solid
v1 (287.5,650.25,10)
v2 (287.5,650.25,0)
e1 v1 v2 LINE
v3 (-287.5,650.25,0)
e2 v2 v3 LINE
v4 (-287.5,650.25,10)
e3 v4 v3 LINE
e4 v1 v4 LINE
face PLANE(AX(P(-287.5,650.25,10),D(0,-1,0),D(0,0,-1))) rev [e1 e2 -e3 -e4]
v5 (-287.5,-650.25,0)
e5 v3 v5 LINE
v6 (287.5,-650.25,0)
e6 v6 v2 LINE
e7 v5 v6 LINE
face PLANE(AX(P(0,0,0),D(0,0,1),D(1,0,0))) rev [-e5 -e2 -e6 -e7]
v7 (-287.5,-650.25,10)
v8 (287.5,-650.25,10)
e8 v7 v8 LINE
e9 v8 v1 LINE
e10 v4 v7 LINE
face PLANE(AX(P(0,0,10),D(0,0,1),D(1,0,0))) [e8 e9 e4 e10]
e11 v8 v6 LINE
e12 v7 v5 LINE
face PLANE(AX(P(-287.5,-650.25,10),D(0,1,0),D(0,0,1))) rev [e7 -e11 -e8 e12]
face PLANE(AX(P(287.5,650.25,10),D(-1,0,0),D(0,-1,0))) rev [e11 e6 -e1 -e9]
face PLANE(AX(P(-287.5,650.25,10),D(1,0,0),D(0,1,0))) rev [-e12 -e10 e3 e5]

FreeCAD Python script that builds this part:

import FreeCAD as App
import Part
import Sketcher

V = App.Vector
Q = App.Units.Quantity


def add_polygon(sketch, points):
    """Adds a closed chain of lines whose ends are joined by coincident constraints."""
    first, n = sketch.GeometryCount, len(points)
    for a, b in zip(points, points[1:] + points[:1]):
        sketch.addGeometry(Part.LineSegment(App.Vector(*a, 0), App.Vector(*b, 0)), False)
    for i in range(n):
        sketch.addConstraint(Sketcher.Constraint("Coincident", first + i, 2, first + (i + 1) % n, 1))

doc = App.newDocument("Part")
body = doc.addObject("PartDesign::Body", "Body")

# Sketch on XY plane
sketch1 = body.newObject("Sketcher::SketchObject", "Sketch")
sketch1.AttachmentSupport = (doc.getObject("XY_Plane"), [""])
sketch1.MapMode = "FlatFace"
add_polygon(sketch1, [(-288, 650), (-288, -650), (288, -650), (288, 650)])  # lines 0-3
sketch1.addConstraint(Sketcher.Constraint("Vertical", 0))
sketch1.addConstraint(Sketcher.Constraint("Horizontal", 1))
sketch1.addConstraint(Sketcher.Constraint("Vertical", 2))
sketch1.addConstraint(Sketcher.Constraint("Horizontal", 3))
sketch1.addConstraint(Sketcher.Constraint("Symmetric", 0, 2, 2, 2, -1, 1))
sketch1.addConstraint(Sketcher.Constraint("DistanceX", 1, 1, 1, 2, Q("575 mm")))
sketch1.addConstraint(Sketcher.Constraint("DistanceY", 0, 2, 0, 1, Q("1300.5 mm")))
pad1 = body.newObject("PartDesign::Pad", "Pad")
pad1.Profile = sketch1
pad1.Length = 10

doc.recompute()
